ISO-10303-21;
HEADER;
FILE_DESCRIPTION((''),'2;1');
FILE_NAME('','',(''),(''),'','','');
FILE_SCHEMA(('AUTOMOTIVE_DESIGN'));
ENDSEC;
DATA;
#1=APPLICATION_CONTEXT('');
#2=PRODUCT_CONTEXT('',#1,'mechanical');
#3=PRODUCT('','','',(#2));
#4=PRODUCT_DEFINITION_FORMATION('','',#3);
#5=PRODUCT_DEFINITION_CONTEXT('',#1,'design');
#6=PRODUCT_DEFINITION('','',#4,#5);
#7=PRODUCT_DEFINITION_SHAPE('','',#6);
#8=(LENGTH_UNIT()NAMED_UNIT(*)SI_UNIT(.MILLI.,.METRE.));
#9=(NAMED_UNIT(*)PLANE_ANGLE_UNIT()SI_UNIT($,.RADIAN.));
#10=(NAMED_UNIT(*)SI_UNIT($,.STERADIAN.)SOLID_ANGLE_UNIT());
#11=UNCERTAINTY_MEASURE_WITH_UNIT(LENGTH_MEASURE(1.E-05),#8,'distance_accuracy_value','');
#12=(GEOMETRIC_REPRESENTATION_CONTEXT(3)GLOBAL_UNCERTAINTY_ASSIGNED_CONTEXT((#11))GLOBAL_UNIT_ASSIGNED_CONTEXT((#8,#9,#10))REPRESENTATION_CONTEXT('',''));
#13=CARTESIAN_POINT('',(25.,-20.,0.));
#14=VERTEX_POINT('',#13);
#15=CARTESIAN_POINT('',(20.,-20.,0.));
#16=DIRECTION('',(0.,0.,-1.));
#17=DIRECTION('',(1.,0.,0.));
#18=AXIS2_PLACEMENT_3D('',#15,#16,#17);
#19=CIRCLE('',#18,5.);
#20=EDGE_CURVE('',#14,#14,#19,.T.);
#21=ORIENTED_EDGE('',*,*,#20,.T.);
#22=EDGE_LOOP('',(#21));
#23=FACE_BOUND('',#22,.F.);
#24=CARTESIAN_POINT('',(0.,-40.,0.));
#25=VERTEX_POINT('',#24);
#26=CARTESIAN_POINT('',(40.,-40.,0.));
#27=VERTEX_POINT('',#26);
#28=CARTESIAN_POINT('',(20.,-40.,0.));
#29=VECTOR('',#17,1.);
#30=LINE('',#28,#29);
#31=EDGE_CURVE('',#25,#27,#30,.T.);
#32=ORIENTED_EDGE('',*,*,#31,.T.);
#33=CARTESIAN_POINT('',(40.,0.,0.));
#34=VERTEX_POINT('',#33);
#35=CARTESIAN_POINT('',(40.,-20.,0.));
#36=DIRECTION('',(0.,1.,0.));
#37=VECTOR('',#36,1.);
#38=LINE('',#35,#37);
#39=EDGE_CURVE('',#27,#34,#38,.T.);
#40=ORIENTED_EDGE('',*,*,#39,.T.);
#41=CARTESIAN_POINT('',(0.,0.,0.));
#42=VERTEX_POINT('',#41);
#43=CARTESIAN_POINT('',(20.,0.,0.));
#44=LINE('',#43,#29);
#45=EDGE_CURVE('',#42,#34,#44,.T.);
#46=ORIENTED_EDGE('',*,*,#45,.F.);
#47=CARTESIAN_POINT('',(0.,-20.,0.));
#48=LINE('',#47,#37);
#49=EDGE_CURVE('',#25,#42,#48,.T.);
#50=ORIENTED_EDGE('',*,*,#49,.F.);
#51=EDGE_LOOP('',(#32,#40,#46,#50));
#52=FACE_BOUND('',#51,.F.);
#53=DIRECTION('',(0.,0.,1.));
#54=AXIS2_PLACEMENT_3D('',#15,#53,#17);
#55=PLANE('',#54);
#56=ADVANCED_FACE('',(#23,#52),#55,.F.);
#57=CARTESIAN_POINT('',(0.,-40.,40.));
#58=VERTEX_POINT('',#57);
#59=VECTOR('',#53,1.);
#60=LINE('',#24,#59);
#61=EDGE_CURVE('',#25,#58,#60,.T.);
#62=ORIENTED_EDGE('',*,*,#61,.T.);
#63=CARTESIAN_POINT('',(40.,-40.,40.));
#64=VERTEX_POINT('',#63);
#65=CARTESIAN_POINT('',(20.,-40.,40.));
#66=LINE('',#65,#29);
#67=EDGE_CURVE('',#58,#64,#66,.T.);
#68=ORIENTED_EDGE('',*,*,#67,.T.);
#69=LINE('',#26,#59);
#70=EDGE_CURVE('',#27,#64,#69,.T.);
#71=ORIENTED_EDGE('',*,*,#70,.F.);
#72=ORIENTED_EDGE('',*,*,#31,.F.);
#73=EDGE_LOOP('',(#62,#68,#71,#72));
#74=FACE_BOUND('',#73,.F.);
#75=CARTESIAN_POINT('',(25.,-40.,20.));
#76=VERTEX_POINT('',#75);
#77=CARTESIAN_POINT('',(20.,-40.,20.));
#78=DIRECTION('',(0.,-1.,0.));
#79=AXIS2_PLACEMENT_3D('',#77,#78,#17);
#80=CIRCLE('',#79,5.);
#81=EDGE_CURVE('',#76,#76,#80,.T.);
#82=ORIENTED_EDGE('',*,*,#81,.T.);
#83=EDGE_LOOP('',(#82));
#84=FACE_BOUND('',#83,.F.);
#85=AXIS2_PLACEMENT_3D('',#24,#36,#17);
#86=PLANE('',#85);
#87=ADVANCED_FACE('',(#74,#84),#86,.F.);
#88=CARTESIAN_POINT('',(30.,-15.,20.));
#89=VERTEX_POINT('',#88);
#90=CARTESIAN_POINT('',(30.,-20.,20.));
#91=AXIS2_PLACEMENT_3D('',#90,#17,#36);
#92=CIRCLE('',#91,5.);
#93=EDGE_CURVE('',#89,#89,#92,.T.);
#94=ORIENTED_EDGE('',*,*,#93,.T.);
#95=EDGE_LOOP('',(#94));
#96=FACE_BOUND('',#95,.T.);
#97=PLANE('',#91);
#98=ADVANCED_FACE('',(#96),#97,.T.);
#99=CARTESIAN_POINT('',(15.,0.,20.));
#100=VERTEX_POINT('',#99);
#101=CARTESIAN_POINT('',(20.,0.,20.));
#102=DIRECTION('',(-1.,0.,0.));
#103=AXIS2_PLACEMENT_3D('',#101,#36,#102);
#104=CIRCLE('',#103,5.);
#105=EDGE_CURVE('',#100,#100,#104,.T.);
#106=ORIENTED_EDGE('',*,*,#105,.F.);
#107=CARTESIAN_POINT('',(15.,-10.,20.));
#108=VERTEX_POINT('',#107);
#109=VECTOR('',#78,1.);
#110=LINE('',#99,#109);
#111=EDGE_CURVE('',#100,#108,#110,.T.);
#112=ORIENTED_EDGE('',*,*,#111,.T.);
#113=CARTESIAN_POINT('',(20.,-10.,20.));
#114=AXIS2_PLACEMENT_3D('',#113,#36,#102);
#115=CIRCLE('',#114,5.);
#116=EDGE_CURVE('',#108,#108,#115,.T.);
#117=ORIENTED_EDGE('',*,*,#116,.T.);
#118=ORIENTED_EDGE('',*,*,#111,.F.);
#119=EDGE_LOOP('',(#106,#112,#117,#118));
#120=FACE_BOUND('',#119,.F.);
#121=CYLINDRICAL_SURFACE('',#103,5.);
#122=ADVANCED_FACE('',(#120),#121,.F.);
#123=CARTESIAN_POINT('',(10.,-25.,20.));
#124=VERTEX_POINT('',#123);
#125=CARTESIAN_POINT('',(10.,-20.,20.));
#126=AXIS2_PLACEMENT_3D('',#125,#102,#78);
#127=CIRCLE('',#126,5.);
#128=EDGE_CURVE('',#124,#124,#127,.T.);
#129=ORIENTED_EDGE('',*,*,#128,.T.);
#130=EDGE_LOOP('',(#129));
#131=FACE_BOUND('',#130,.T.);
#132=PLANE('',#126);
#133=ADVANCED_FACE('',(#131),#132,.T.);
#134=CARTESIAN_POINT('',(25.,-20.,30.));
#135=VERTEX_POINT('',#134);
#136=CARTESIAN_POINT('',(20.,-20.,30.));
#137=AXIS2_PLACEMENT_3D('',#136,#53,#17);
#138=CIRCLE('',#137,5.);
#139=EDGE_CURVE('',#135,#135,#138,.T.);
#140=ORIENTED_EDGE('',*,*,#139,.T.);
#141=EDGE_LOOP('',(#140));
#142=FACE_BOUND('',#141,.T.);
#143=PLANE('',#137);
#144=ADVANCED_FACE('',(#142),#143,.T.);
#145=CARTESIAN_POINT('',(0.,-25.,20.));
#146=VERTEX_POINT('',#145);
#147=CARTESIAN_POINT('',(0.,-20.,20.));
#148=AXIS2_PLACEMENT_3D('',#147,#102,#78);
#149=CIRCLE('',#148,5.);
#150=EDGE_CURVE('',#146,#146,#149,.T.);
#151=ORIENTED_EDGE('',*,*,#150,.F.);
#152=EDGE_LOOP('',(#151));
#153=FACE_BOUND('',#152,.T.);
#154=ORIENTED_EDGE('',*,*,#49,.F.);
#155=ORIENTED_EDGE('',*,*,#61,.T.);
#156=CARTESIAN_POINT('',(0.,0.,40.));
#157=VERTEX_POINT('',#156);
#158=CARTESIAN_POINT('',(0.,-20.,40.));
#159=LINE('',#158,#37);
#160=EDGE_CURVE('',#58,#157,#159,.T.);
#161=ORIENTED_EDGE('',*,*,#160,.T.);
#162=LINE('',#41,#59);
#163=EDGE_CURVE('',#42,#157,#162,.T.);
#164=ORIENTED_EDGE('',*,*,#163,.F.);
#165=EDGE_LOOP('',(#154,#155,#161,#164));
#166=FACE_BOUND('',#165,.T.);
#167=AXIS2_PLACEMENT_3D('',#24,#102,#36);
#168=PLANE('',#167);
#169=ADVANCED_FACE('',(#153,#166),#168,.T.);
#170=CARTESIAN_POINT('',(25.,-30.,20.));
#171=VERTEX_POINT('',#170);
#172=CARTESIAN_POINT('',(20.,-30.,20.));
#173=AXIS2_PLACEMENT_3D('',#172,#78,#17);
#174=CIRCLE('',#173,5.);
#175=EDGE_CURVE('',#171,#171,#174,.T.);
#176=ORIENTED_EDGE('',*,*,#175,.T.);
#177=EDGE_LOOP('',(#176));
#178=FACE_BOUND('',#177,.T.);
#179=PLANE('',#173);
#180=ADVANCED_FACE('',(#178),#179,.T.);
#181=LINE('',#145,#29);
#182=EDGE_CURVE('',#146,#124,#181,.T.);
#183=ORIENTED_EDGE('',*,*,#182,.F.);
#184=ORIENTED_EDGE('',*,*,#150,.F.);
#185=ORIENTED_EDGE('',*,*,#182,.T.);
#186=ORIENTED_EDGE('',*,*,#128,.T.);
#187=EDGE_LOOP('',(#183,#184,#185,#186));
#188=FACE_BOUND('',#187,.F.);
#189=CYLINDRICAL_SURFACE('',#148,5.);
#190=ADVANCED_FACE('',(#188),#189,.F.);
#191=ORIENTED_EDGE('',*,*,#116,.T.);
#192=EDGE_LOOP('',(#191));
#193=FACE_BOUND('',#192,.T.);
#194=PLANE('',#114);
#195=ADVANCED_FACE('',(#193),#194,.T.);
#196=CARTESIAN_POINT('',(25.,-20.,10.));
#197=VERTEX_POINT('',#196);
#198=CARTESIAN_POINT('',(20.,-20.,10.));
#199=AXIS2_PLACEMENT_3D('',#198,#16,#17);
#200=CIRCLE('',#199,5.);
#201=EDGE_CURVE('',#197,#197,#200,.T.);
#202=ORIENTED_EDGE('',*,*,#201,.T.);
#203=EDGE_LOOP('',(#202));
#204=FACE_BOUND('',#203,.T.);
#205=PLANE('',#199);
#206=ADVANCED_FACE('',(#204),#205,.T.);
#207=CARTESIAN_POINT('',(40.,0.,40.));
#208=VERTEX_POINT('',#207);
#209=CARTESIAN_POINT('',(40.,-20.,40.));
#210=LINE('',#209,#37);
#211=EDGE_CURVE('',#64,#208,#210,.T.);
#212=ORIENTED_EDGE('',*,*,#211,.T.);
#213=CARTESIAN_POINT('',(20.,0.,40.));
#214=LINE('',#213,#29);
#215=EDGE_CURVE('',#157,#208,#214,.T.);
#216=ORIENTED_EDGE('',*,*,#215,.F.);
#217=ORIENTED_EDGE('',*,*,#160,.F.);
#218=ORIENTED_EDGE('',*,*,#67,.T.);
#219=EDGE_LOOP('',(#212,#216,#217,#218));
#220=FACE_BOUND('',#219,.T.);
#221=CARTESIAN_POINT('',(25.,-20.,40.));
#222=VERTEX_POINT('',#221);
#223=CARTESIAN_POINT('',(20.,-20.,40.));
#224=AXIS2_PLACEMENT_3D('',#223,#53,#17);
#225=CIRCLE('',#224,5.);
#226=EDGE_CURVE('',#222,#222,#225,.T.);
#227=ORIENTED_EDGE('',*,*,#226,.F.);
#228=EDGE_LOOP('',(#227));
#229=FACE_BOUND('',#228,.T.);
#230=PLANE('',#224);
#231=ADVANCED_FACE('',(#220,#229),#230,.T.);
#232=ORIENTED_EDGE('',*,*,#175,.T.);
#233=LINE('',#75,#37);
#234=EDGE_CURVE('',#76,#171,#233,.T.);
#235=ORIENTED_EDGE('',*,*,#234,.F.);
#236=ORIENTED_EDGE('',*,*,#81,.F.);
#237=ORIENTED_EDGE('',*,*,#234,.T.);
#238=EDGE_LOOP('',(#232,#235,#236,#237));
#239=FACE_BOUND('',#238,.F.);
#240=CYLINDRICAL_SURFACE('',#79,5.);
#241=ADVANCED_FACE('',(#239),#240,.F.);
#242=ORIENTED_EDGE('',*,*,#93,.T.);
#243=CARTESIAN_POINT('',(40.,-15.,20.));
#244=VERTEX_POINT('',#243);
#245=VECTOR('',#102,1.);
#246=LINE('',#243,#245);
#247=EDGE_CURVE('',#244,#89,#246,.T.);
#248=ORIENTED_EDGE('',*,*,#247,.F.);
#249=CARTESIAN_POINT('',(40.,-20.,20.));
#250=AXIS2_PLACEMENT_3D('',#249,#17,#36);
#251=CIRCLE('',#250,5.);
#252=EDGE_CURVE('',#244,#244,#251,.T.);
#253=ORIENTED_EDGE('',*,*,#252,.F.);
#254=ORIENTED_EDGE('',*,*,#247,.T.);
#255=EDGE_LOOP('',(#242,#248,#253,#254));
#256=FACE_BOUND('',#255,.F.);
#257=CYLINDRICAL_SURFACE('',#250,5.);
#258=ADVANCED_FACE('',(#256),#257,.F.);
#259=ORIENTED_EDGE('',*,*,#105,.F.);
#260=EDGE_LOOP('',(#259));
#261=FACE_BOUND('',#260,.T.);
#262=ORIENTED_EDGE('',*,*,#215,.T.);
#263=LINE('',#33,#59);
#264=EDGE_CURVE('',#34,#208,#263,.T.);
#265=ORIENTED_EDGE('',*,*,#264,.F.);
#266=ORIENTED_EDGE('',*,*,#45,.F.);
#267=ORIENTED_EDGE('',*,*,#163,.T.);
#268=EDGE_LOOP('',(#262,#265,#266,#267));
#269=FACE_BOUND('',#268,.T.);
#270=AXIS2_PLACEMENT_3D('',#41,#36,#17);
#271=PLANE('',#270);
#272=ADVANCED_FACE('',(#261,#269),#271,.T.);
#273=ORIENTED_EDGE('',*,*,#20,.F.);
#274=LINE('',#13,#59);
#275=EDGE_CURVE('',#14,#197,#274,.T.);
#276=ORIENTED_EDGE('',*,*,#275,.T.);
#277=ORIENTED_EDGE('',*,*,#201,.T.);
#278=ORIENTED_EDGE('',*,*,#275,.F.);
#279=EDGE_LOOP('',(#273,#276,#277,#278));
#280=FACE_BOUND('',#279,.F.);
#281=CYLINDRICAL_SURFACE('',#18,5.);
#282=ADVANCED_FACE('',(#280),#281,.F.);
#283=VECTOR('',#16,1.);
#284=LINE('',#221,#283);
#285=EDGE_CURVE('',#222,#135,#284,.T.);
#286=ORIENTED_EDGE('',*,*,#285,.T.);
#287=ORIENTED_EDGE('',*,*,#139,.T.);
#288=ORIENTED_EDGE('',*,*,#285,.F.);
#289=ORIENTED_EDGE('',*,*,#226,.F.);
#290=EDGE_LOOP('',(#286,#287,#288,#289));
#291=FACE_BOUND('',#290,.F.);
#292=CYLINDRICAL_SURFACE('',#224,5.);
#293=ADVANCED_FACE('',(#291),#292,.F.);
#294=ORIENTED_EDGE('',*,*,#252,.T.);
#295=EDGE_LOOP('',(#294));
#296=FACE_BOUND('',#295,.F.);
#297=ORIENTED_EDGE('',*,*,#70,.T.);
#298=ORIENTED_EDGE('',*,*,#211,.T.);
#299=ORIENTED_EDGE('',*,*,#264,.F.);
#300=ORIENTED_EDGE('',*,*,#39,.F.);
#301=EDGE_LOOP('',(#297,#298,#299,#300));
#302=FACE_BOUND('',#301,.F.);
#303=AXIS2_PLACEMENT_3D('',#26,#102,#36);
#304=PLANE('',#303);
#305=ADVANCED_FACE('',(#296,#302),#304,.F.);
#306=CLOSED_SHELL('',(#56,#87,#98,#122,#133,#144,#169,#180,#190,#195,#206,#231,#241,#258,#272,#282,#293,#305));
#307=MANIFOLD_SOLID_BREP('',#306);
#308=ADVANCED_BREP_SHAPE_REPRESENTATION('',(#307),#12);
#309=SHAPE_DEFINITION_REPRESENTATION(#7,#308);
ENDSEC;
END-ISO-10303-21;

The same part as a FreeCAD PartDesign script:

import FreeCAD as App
import Part
import Sketcher


def add_polygon(sketch, points):
    """Adds a closed chain of lines whose ends are joined by coincident constraints."""
    first, n = sketch.GeometryCount, len(points)
    for a, b in zip(points, points[1:] + points[:1]):
        sketch.addGeometry(Part.LineSegment(App.Vector(*a, 0), App.Vector(*b, 0)), False)
    for i in range(n):
        sketch.addConstraint(Sketcher.Constraint("Coincident", first + i, 2, first + (i + 1) % n, 1))

doc = App.newDocument("Part")
params = doc.addObject("Spreadsheet::Sheet", "Params")
for row, (alias, value) in enumerate([
    ("sketch1_width", "40 mm"),
    ("pad1_length", "40 mm"),
    ("sketch2_diameter", "10 mm"),
    ("pocket1_length", "10 mm"),
    ("sketch3_diameter", "10 mm"),
    ("pocket2_length", "10 mm"),
    ("sketch4_diameter", "10 mm"),
    ("pocket3_length", "10 mm"),
    ("sketch5_diameter", "10 mm"),
    ("pocket4_length", "10 mm"),
    ("sketch6_diameter", "10 mm"),
    ("pocket5_length", "10 mm"),
    ("sketch7_diameter", "10 mm"),
    ("pocket6_length", "10 mm"),
], start=1):
    params.set(f"A{row}", alias)
    params.set(f"B{row}", "=" + value)
    params.setAlias(f"B{row}", alias)

body = doc.addObject("PartDesign::Body", "Body")

sketch1 = body.newObject("Sketcher::SketchObject", "Sketch")
sketch1.AttachmentSupport = (doc.getObject("XY_Plane"), [""])
sketch1.MapMode = "FlatFace"
add_polygon(sketch1, [(0, 0), (0, -40), (40, -40), (40, 0)])
sketch1.addConstraint([
    Sketcher.Constraint("Vertical", 0),
    Sketcher.Constraint("Horizontal", 1),
    Sketcher.Constraint("Vertical", 2),
    Sketcher.Constraint("Horizontal", 3),
    Sketcher.Constraint("Coincident", 3, 2, -1, 1),
    Sketcher.Constraint("Equal", 3, 0),
    Sketcher.Constraint("DistanceX", 1, 1, 1, 2, 40.0),
])
sketch1.setExpression("Constraints[10]", "Params.sketch1_width")
pad1 = body.newObject("PartDesign::Pad", "Pad")
pad1.Profile = sketch1
pad1.setExpression("Length", "Params.pad1_length")

sketch2 = body.newObject("Sketcher::SketchObject", "Sketch001")
sketch2.AttachmentSupport = (doc.getObject("XY_Plane"), [""])
sketch2.MapMode = "FlatFace"
sketch2.AttachmentOffset = App.Placement(App.Vector(0, 0, 40), App.Rotation())
sketch2.addGeometry(Part.Circle(App.Vector(20, -20, 0), App.Vector(0, 0, 1), 5), False)
sketch2.addConstraint([
    Sketcher.Constraint("Diameter", 0, 10.0),
    Sketcher.Constraint("DistanceX", -1, 1, 0, 3, 20.0),
    Sketcher.Constraint("DistanceY", 0, 3, -1, 1, 20.0),
])
sketch2.setExpression("Constraints[0]", "Params.sketch2_diameter")
pocket1 = body.newObject("PartDesign::Pocket", "Pocket")
pocket1.Profile = sketch2
pocket1.setExpression("Length", "Params.pocket1_length")

sketch3 = body.newObject("Sketcher::SketchObject", "Sketch002")
sketch3.AttachmentSupport = (doc.getObject("XZ_Plane"), [""])
sketch3.MapMode = "FlatFace"
sketch3.addGeometry(Part.Circle(App.Vector(20, 20, 0), App.Vector(0, 0, 1), 5), False)
sketch3.addConstraint([
    Sketcher.Constraint("Diameter", 0, 10.0),
    Sketcher.Constraint("DistanceX", -1, 1, 0, 3, 20.0),
    Sketcher.Constraint("DistanceY", -1, 1, 0, 3, 20.0),
])
sketch3.setExpression("Constraints[0]", "Params.sketch3_diameter")
pocket2 = body.newObject("PartDesign::Pocket", "Pocket001")
pocket2.Profile = sketch3
pocket2.setExpression("Length", "Params.pocket2_length")
pocket2.Reversed = True

sketch4 = body.newObject("Sketcher::SketchObject", "Sketch003")
sketch4.AttachmentSupport = (doc.getObject("XY_Plane"), [""])
sketch4.MapMode = "FlatFace"
sketch4.addGeometry(Part.Circle(App.Vector(20, -20, 0), App.Vector(0, 0, 1), 5), False)
sketch4.addConstraint([
    Sketcher.Constraint("Diameter", 0, 10.0),
    Sketcher.Constraint("DistanceX", -1, 1, 0, 3, 20.0),
    Sketcher.Constraint("DistanceY", 0, 3, -1, 1, 20.0),
])
sketch4.setExpression("Constraints[0]", "Params.sketch4_diameter")
pocket3 = body.newObject("PartDesign::Pocket", "Pocket002")
pocket3.Profile = sketch4
pocket3.setExpression("Length", "Params.pocket3_length")
pocket3.Reversed = True

sketch5 = body.newObject("Sketcher::SketchObject", "Sketch004")
sketch5.AttachmentSupport = (doc.getObject("XZ_Plane"), [""])
sketch5.MapMode = "FlatFace"
sketch5.AttachmentOffset = App.Placement(App.Vector(0, 0, 40), App.Rotation())
sketch5.addGeometry(Part.Circle(App.Vector(20, 20, 0), App.Vector(0, 0, 1), 5), False)
sketch5.addConstraint([
    Sketcher.Constraint("Diameter", 0, 10.0),
    Sketcher.Constraint("DistanceX", -1, 1, 0, 3, 20.0),
    Sketcher.Constraint("DistanceY", -1, 1, 0, 3, 20.0),
])
sketch5.setExpression("Constraints[0]", "Params.sketch5_diameter")
pocket4 = body.newObject("PartDesign::Pocket", "Pocket003")
pocket4.Profile = sketch5
pocket4.setExpression("Length", "Params.pocket4_length")

sketch6 = body.newObject("Sketcher::SketchObject", "Sketch005")
sketch6.AttachmentSupport = (doc.getObject("YZ_Plane"), [""])
sketch6.MapMode = "FlatFace"
sketch6.AttachmentOffset = App.Placement(App.Vector(0, 0, 40), App.Rotation())
sketch6.addGeometry(Part.Circle(App.Vector(-20, 20, 0), App.Vector(0, 0, 1), 5), False)
sketch6.addConstraint([
    Sketcher.Constraint("Diameter", 0, 10.0),
    Sketcher.Constraint("DistanceX", 0, 3, -1, 1, 20.0),
    Sketcher.Constraint("DistanceY", -1, 1, 0, 3, 20.0),
])
sketch6.setExpression("Constraints[0]", "Params.sketch6_diameter")
pocket5 = body.newObject("PartDesign::Pocket", "Pocket004")
pocket5.Profile = sketch6
pocket5.setExpression("Length", "Params.pocket5_length")

sketch7 = body.newObject("Sketcher::SketchObject", "Sketch006")
sketch7.AttachmentSupport = (doc.getObject("YZ_Plane"), [""])
sketch7.MapMode = "FlatFace"
sketch7.addGeometry(Part.Circle(App.Vector(-20, 20, 0), App.Vector(0, 0, 1), 5), False)
sketch7.addConstraint([
    Sketcher.Constraint("Diameter", 0, 10.0),
    Sketcher.Constraint("DistanceX", 0, 3, -1, 1, 20.0),
    Sketcher.Constraint("DistanceY", -1, 1, 0, 3, 20.0),
])
sketch7.setExpression("Constraints[0]", "Params.sketch7_diameter")
pocket6 = body.newObject("PartDesign::Pocket", "Pocket005")
pocket6.Profile = sketch7
pocket6.setExpression("Length", "Params.pocket6_length")
pocket6.Reversed = True

doc.recompute()
